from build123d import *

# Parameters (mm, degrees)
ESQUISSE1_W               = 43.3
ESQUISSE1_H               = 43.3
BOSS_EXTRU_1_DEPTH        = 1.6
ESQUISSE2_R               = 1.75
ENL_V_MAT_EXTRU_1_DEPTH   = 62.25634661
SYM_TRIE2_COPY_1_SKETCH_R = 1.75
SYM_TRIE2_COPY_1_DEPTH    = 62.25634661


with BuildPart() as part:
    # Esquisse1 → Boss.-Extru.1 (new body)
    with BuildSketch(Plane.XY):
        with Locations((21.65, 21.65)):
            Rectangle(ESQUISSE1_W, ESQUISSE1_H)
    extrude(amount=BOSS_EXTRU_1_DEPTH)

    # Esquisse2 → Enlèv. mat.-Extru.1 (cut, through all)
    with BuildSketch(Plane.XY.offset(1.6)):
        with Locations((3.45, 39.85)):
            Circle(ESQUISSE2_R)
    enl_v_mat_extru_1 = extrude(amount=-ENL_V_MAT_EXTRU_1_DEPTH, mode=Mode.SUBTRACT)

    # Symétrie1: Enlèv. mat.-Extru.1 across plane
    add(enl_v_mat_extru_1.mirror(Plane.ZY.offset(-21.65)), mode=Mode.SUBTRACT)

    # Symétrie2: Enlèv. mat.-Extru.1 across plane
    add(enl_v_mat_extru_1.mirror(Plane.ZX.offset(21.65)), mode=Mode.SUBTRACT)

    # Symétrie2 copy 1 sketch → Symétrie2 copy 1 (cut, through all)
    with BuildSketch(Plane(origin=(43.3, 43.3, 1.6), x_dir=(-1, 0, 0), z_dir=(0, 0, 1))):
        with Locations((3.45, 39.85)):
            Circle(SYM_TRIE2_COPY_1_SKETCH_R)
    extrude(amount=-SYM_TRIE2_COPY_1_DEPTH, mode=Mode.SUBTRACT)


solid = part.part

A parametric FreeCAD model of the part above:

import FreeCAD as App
import Part
import Sketcher

V = App.Vector


def add_polygon(sketch, points):
    """Adds a closed chain of lines whose ends are joined by coincident constraints."""
    first, n = sketch.GeometryCount, len(points)
    for a, b in zip(points, points[1:] + points[:1]):
        sketch.addGeometry(Part.LineSegment(App.Vector(*a, 0), App.Vector(*b, 0)), False)
    for i in range(n):
        sketch.addConstraint(Sketcher.Constraint("Coincident", first + i, 2, first + (i + 1) % n, 1))

doc = App.newDocument("Part")
body = doc.addObject("PartDesign::Body", "Body")

# Sketch on XY plane
sketch1 = body.newObject("Sketcher::SketchObject", "Sketch")
sketch1.AttachmentSupport = (doc.getObject("XY_Plane"), [""])
sketch1.MapMode = "FlatFace"
add_polygon(sketch1, [(0, 43), (0, 0), (43, 0), (43, 43)])  # lines 0-3
sketch1.addConstraint([
    Sketcher.Constraint("Vertical", 0),
    Sketcher.Constraint("Horizontal", 1),
    Sketcher.Constraint("Vertical", 2),
    Sketcher.Constraint("Horizontal", 3),
    Sketcher.Constraint("Coincident", 0, 2, -1, 1),
    Sketcher.Constraint("Equal", 3, 0),
    Sketcher.Constraint("DistanceX", 1, 1, 1, 2, 43.3),
])
pad1 = body.newObject("PartDesign::Pad", "Pad")
pad1.Profile = sketch1
pad1.Length = 1.6

# Sketch on XY plane
sketch2 = body.newObject("Sketcher::SketchObject", "Sketch001")
sketch2.AttachmentSupport = (doc.getObject("XY_Plane"), [""])
sketch2.MapMode = "FlatFace"
sketch2.AttachmentOffset = App.Placement(V(0, 0, 1.6), App.Rotation())
sketch2.addGeometry(Part.Circle(V(3.5, 39.9, 0), V(0, 0, 1), 1.8), False)
sketch2.addConstraint([
    Sketcher.Constraint("Diameter", 0, 3.5),
    Sketcher.Constraint("DistanceX", -1, 1, 0, 3, 3.45),
    Sketcher.Constraint("DistanceY", -1, 1, 0, 3, 39.85),
])
pocket1 = body.newObject("PartDesign::Pocket", "Pocket")
pocket1.Profile = sketch2
pocket1.Type = "ThroughAll"
doc.recompute()

datumplane = body.newObject("PartDesign::Plane", "DatumPlane")
datumplane.AttachmentSupport = (doc.getObject("YZ_Plane"), [""])
datumplane.MapMode = "FlatFace"
datumplane.AttachmentOffset = App.Placement(V(0, 0, 21.65), App.Rotation())
mirrored = body.newObject("PartDesign::Mirrored", "Mirrored")
mirrored.Originals = [pocket1]
mirrored.MirrorPlane = (datumplane, [""])
body.Tip = mirrored
doc.recompute()

datumplane2 = body.newObject("PartDesign::Plane", "DatumPlane001")
datumplane2.AttachmentSupport = (doc.getObject("XZ_Plane"), [""])
datumplane2.MapMode = "FlatFace"
datumplane2.AttachmentOffset = App.Placement(V(0, 0, -21.65), App.Rotation())
mirrored2 = body.newObject("PartDesign::Mirrored", "Mirrored001")
mirrored2.Originals = [pocket1]
mirrored2.MirrorPlane = (datumplane2, [""])
body.Tip = mirrored2

# Sketch on XY plane
sketch3 = body.newObject("Sketcher::SketchObject", "Sketch002")
sketch3.AttachmentSupport = (doc.getObject("XY_Plane"), [""])
sketch3.MapMode = "FlatFace"
sketch3.AttachmentOffset = App.Placement(V(0, 0, 1.6), App.Rotation())
sketch3.addGeometry(Part.Circle(V(39.9, 3.5, 0), V(0, 0, 1), 1.8), False)
sketch3.addConstraint([
    Sketcher.Constraint("Diameter", 0, 3.5),
    Sketcher.Constraint("DistanceX", -1, 1, 0, 3, 39.85),
    Sketcher.Constraint("DistanceY", -1, 1, 0, 3, 3.45),
])
pocket2 = body.newObject("PartDesign::Pocket", "Pocket001")
pocket2.Profile = sketch3
pocket2.Type = "ThroughAll"

doc.recompute()
